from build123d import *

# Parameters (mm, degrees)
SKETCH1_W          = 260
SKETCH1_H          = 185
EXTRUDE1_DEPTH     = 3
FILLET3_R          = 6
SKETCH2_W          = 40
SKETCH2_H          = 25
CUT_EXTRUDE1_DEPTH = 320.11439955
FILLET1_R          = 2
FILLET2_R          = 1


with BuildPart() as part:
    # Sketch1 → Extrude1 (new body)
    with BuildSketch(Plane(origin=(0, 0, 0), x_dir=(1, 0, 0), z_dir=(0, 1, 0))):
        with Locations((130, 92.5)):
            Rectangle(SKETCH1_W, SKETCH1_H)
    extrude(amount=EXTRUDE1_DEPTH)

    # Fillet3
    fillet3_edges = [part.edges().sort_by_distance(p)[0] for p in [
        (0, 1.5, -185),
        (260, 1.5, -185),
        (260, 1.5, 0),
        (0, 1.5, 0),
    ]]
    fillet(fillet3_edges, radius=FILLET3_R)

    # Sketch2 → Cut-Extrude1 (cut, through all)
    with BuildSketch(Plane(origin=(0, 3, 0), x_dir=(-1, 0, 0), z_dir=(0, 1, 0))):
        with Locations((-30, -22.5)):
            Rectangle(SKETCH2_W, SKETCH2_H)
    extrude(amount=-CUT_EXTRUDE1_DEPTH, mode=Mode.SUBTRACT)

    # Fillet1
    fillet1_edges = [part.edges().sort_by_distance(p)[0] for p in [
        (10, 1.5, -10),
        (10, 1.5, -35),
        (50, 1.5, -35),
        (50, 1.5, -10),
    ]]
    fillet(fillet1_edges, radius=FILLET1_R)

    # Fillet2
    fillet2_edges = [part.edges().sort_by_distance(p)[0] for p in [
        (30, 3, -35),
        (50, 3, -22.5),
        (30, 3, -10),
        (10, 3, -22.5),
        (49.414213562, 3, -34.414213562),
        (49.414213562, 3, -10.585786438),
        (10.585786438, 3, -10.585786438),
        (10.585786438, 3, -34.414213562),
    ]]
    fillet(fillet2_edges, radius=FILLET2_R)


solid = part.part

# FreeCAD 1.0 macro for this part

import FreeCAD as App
import Part
import Sketcher

V = App.Vector


def edges_at(feature, points):
    """Names of the edges that pass closest to the given points."""
    edges = feature.Shape.Edges
    near = lambda p: min(range(len(edges)), key=lambda i: edges[i].distToShape(Part.Vertex(*p))[0])
    return sorted({f"Edge{near(p) + 1}" for p in points})

doc = App.newDocument("Part")
body = doc.addObject("PartDesign::Body", "Body")

# Sketch on XZ plane
sketch1 = body.newObject("Sketcher::SketchObject", "Sketch")
sketch1.AttachmentSupport = (doc.getObject("XZ_Plane"), [""])
sketch1.MapMode = "FlatFace"
sketch1.addGeometry([
    Part.LineSegment(V(0, -185, 0), V(0, 0, 0)),
    Part.LineSegment(V(0, 0, 0), V(260, 0, 0)),
    Part.LineSegment(V(260, 0, 0), V(260, -185, 0)),
    Part.LineSegment(V(260, -185, 0), V(0, -185, 0)),
], False)
sketch1.addConstraint([
    Sketcher.Constraint("Coincident", 0, 2, 1, 1),
    Sketcher.Constraint("Coincident", 1, 2, 2, 1),
    Sketcher.Constraint("Coincident", 2, 2, 3, 1),
    Sketcher.Constraint("Coincident", 3, 2, 0, 1),
    Sketcher.Constraint("Vertical", 0),
    Sketcher.Constraint("Horizontal", 1),
    Sketcher.Constraint("Vertical", 2),
    Sketcher.Constraint("Horizontal", 3),
    Sketcher.Constraint("Coincident", 0, 2, -1, 1),
    Sketcher.Constraint("DistanceX", 1, 1, 1, 2, 260.0),
    Sketcher.Constraint("DistanceY", 0, 1, 0, 2, 185.0),
])
pad1 = body.newObject("PartDesign::Pad", "Pad")
pad1.Profile = sketch1
pad1.Length = 3
pad1.Reversed = True
doc.recompute()

fillet = body.newObject("PartDesign::Fillet", "Fillet")
fillet.Base = (pad1, edges_at(pad1, [
    (0, 1.5, -185),
    (260, 1.5, -185),
    (260, 1.5, 0),
    (0, 1.5, 0),
]))
fillet.Radius = 6

# Sketch on XZ plane
sketch2 = body.newObject("Sketcher::SketchObject", "Sketch001")
sketch2.AttachmentSupport = (doc.getObject("XZ_Plane"), [""])
sketch2.MapMode = "FlatFace"
sketch2.AttachmentOffset = App.Placement(V(0, 0, -3), App.Rotation())
sketch2.addGeometry([
    Part.LineSegment(V(50, -10, 0), V(50, -35, 0)),
    Part.LineSegment(V(50, -35, 0), V(10, -35, 0)),
    Part.LineSegment(V(10, -35, 0), V(10, -10, 0)),
    Part.LineSegment(V(10, -10, 0), V(50, -10, 0)),
], False)
sketch2.addConstraint([
    Sketcher.Constraint("Coincident", 0, 2, 1, 1),
    Sketcher.Constraint("Coincident", 1, 2, 2, 1),
    Sketcher.Constraint("Coincident", 2, 2, 3, 1),
    Sketcher.Constraint("Coincident", 3, 2, 0, 1),
    Sketcher.Constraint("Vertical", 0),
    Sketcher.Constraint("Horizontal", 1),
    Sketcher.Constraint("Vertical", 2),
    Sketcher.Constraint("Horizontal", 3),
    Sketcher.Constraint("DistanceX", 1, 2, 1, 1, 40.0),
    Sketcher.Constraint("DistanceY", 0, 2, 0, 1, 25.0),
    Sketcher.Constraint("DistanceX", -1, 1, 0, 2, 50.0),
    Sketcher.Constraint("DistanceY", 0, 2, -1, 1, 35.0),
])
pocket1 = body.newObject("PartDesign::Pocket", "Pocket")
pocket1.Profile = sketch2
pocket1.Type = "ThroughAll"
pocket1.Reversed = True
doc.recompute()

fillet2 = body.newObject("PartDesign::Fillet", "Fillet001")
fillet2.Base = (pocket1, edges_at(pocket1, [
    (10, 1.5, -10),
    (10, 1.5, -35),
    (50, 1.5, -35),
    (50, 1.5, -10),
]))
fillet2.Radius = 2
doc.recompute()

fillet3 = body.newObject("PartDesign::Fillet", "Fillet002")
fillet3.Base = (fillet2, edges_at(fillet2, [
    (30, 3, -35),
    (50, 3, -22.5),
    (30, 3, -10),
    (10, 3, -22.5),
    (49.414, 3, -34.414),
    (49.414, 3, -10.586),
    (10.586, 3, -10.586),
    (10.586, 3, -34.414),
]))
fillet3.Radius = 1

doc.recompute()
